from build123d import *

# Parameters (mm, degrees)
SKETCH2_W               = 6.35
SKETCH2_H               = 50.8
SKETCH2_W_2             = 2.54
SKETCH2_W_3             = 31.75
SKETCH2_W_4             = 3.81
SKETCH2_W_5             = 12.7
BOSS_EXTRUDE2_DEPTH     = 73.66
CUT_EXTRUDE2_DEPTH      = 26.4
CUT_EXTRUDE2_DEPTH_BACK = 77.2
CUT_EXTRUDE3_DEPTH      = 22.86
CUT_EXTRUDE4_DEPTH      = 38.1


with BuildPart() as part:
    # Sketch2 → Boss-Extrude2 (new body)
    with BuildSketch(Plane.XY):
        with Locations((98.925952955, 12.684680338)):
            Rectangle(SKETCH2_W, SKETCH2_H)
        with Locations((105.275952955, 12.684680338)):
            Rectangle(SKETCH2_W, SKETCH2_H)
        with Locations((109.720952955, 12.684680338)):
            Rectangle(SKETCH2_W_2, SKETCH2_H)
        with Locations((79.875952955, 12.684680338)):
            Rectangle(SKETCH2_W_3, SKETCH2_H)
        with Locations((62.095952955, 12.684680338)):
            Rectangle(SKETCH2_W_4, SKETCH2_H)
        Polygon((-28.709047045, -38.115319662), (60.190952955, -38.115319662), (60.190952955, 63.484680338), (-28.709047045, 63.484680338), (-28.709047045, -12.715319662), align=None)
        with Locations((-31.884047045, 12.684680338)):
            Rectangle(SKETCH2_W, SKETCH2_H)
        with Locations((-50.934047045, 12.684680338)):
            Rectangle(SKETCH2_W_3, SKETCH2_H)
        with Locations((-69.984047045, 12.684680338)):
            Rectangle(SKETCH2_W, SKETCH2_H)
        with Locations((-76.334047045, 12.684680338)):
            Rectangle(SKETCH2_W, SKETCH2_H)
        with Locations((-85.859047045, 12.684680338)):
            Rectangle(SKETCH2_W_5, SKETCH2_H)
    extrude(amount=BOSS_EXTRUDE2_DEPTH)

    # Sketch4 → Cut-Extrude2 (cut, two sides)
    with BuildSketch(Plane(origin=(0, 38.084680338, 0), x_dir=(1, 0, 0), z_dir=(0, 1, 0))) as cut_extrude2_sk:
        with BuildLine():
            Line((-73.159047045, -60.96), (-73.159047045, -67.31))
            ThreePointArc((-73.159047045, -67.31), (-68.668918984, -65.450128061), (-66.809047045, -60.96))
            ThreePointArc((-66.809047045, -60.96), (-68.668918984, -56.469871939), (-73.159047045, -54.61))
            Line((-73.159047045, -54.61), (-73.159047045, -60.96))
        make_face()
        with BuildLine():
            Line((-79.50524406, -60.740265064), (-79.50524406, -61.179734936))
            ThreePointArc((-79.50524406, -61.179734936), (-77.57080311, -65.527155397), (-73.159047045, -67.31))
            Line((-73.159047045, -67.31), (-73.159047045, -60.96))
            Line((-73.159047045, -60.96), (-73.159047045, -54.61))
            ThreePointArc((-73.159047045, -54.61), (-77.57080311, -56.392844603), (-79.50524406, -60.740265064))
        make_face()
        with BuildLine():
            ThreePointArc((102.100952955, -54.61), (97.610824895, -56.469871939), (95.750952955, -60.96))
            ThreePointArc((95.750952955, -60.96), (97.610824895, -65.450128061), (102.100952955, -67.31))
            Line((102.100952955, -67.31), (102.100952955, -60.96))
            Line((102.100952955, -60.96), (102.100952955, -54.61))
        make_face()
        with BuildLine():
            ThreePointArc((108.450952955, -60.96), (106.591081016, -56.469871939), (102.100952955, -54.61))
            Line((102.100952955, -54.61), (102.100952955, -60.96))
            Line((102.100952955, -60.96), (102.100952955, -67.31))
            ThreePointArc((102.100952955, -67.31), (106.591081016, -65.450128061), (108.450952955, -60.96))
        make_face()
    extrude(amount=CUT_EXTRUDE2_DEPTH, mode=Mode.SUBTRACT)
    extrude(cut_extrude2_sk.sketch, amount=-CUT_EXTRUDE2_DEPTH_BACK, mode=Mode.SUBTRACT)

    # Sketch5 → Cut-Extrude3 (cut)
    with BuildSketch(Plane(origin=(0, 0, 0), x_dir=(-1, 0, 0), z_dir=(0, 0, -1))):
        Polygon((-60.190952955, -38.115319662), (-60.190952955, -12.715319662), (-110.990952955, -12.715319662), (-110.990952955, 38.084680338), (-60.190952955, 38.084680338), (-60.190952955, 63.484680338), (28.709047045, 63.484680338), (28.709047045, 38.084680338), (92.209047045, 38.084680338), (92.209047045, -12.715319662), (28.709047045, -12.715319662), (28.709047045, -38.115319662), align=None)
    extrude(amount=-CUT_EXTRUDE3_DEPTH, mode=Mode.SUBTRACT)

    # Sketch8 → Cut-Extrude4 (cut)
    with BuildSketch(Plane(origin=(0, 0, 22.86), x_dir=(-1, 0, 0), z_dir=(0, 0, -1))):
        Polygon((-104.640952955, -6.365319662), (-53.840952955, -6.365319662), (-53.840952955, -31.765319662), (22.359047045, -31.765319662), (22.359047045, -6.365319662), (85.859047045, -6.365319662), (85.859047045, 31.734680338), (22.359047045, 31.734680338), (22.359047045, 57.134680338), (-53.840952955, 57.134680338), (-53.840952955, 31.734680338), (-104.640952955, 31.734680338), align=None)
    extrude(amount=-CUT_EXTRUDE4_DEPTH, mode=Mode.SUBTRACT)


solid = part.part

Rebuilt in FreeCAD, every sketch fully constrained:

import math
import FreeCAD as App
import Part
import Sketcher
from FreeCAD import Vector
Q = App.Units.Quantity


def add_polygon(sketch, points):
    """Adds a closed chain of lines whose ends are joined by coincident constraints."""
    first, n = sketch.GeometryCount, len(points)
    for a, b in zip(points, points[1:] + points[:1]):
        sketch.addGeometry(Part.LineSegment(App.Vector(*a, 0), App.Vector(*b, 0)), False)
    for i in range(n):
        sketch.addConstraint(Sketcher.Constraint("Coincident", first + i, 2, first + (i + 1) % n, 1))

doc = App.newDocument("Part")
body = doc.addObject("PartDesign::Body", "Body")

sketch1 = body.newObject("Sketcher::SketchObject", "Sketch")
sketch1.AttachmentSupport = (doc.getObject("XY_Plane"), [""])
sketch1.MapMode = "FlatFace"
add_polygon(sketch1, [(111, -13), (111, 38), (60, 38), (60, 63), (-29, 63), (-29, 38), (-92, 38), (-92, -13), (-29, -13), (-29, -38), (60, -38), (60, -13)])
sketch1.addConstraint(Sketcher.Constraint("Vertical", 0))
sketch1.addConstraint(Sketcher.Constraint("Horizontal", 1))
sketch1.addConstraint(Sketcher.Constraint("Vertical", 2))
sketch1.addConstraint(Sketcher.Constraint("Horizontal", 3))
sketch1.addConstraint(Sketcher.Constraint("Vertical", 4))
sketch1.addConstraint(Sketcher.Constraint("Horizontal", 5))
sketch1.addConstraint(Sketcher.Constraint("Vertical", 6))
sketch1.addConstraint(Sketcher.Constraint("Horizontal", 7))
sketch1.addConstraint(Sketcher.Constraint("Vertical", 8))
sketch1.addConstraint(Sketcher.Constraint("Horizontal", 9))
sketch1.addConstraint(Sketcher.Constraint("Vertical", 10))
sketch1.addConstraint(Sketcher.Constraint("Horizontal", 11))
sketch1.addConstraint(Sketcher.Constraint("Horizontal", 1, 2, 4, 2))
sketch1.addConstraint(Sketcher.Constraint("Horizontal", 7, 2, 10, 2))
sketch1.addConstraint(Sketcher.Constraint("Vertical", 4, 2, 7, 2))
sketch1.addConstraint(Sketcher.Constraint("Vertical", 2, 2, 9, 2))
sketch1.addConstraint(Sketcher.Constraint("Equal", 11, 0))
sketch1.addConstraint(Sketcher.Constraint("Equal", 4, 8))
sketch1.addConstraint(Sketcher.Constraint("DistanceX", 1, 2, 1, 1, Q("2 in")))
sketch1.addConstraint(Sketcher.Constraint("DistanceY", 2, 1, 2, 2, Q("1 in")))
sketch1.addConstraint(Sketcher.Constraint("DistanceX", 3, 2, 3, 1, Q("3.5 in")))
sketch1.addConstraint(Sketcher.Constraint("DistanceX", 5, 2, 5, 1, Q("2.5 in")))
sketch1.addConstraint(Sketcher.Constraint("DistanceY", -1, 1, 0, 2, Q("38.08468 mm")))
sketch1.addConstraint(Sketcher.Constraint("DistanceX", -1, 1, 0, 2, Q("110.990953 mm")))
pad1 = body.newObject("PartDesign::Pad", "Pad")
pad1.Profile = sketch1
pad1.Length = Q("2.9 in")

sketch2 = body.newObject("Sketcher::SketchObject", "Sketch001")
sketch2.AttachmentSupport = (doc.getObject("XZ_Plane"), [""])
sketch2.MapMode = "FlatFace"
sketch2.AttachmentOffset = App.Placement(Vector(0, 0, -38.08468), App.Rotation())
sketch2.addGeometry(Part.ArcOfCircle(Part.Circle(Vector(-73.16, 60.96, 0), Vector(0, 0, 1), 6.35), math.radians(0), math.radians(90)), False)
sketch2.addGeometry(Part.ArcOfCircle(Part.Circle(Vector(-73.16, 60.96, 0), Vector(0, 0, 1), 6.35), math.radians(-90), math.radians(0)), False)
sketch2.addGeometry(Part.ArcOfCircle(Part.Circle(Vector(-73.16, 60.96, 0), Vector(0, 0, 1), 6.35), math.radians(-178), math.radians(-90)), False)
sketch2.addGeometry(Part.LineSegment(Vector(-79.51, 60.74, 0), Vector(-79.51, 61.18, 0)), False)
sketch2.addGeometry(Part.ArcOfCircle(Part.Circle(Vector(-73.16, 60.96, 0), Vector(0, 0, 1), 6.35), math.radians(90), math.radians(178)), False)
sketch2.addGeometry(Part.ArcOfCircle(Part.Circle(Vector(102.1, 60.96, 0), Vector(0, 0, 1), 6.35), math.radians(180), math.radians(270)), False)
sketch2.addGeometry(Part.ArcOfCircle(Part.Circle(Vector(102.1, 60.96, 0), Vector(0, 0, 1), 6.35), math.radians(90), math.radians(180)), False)
sketch2.addGeometry(Part.ArcOfCircle(Part.Circle(Vector(102.1, 60.96, 0), Vector(0, 0, 1), 6.35), math.radians(0), math.radians(90)), False)
sketch2.addGeometry(Part.ArcOfCircle(Part.Circle(Vector(102.1, 60.96, 0), Vector(0, 0, 1), 6.35), math.radians(-90), math.radians(0)), False)
sketch2.addConstraint(Sketcher.Constraint("Tangent", 0, 1, 1, 2))
sketch2.addConstraint(Sketcher.Constraint("Tangent", 1, 1, 2, 2))
sketch2.addConstraint(Sketcher.Constraint("Coincident", 2, 1, 3, 1))
sketch2.addConstraint(Sketcher.Constraint("Coincident", 3, 2, 4, 2))
sketch2.addConstraint(Sketcher.Constraint("Tangent", 4, 1, 0, 2))
sketch2.addConstraint(Sketcher.Constraint("Tangent", 5, 1, 6, 2))
sketch2.addConstraint(Sketcher.Constraint("Tangent", 6, 1, 7, 2))
sketch2.addConstraint(Sketcher.Constraint("Tangent", 7, 1, 8, 2))
sketch2.addConstraint(Sketcher.Constraint("Tangent", 8, 1, 5, 2))
sketch2.addConstraint(Sketcher.Constraint("Vertical", 3))
sketch2.addConstraint(Sketcher.Constraint("Coincident", 2, 3, 0, 3))
sketch2.addConstraint(Sketcher.Constraint("Equal", 2, 4))
sketch2.addConstraint(Sketcher.Constraint("Equal", 4, 5))
sketch2.addConstraint(Sketcher.Constraint("Equal", 5, 6))
sketch2.addConstraint(Sketcher.Constraint("Horizontal", 4, 3, 5, 3))
sketch2.addConstraint(Sketcher.Constraint("Horizontal", 8, 3, 0, 1))
sketch2.addConstraint(Sketcher.Constraint("Horizontal", 0, 1, 5, 1))
sketch2.addConstraint(Sketcher.Constraint("Horizontal", 5, 1, 7, 1))
sketch2.addConstraint(Sketcher.Constraint("Vertical", 4, 3, 1, 1))
sketch2.addConstraint(Sketcher.Constraint("Vertical", 1, 1, 4, 1))
sketch2.addConstraint(Sketcher.Constraint("Vertical", 8, 3, 6, 1))
sketch2.addConstraint(Sketcher.Constraint("Vertical", 6, 1, 8, 1))
sketch2.addConstraint(Sketcher.Constraint("Radius", 0, Q("0.25 in")))
sketch2.addConstraint(Sketcher.Constraint("DistanceY", -1, 1, 0, 3, Q("2.4 in")))
sketch2.addConstraint(Sketcher.Constraint("DistanceX", 0, 3, 5, 3, Q("6.9 in")))
sketch2.addConstraint(Sketcher.Constraint("DistanceY", 3, 1, 3, 2, Q("0.43947 mm")))
sketch2.addConstraint(Sketcher.Constraint("DistanceX", 0, 3, -1, 1, Q("73.159047 mm")))
pocket1 = body.newObject("PartDesign::Pocket", "Pocket")
pocket1.Profile = sketch2
pocket1.Type = "ThroughAll"
pocket1.Midplane = True

sketch3 = body.newObject("Sketcher::SketchObject", "Sketch002")
sketch3.AttachmentSupport = (doc.getObject("XY_Plane"), [""])
sketch3.MapMode = "FlatFace"
add_polygon(sketch3, [(60, -13), (60, -38), (-29, -38), (-29, -13), (-92, -13), (-92, 38), (-29, 38), (-29, 63), (60, 63), (60, 38), (111, 38), (111, -13)])
sketch3.addConstraint(Sketcher.Constraint("Vertical", 0))
sketch3.addConstraint(Sketcher.Constraint("Horizontal", 1))
sketch3.addConstraint(Sketcher.Constraint("Vertical", 2))
sketch3.addConstraint(Sketcher.Constraint("Horizontal", 3))
sketch3.addConstraint(Sketcher.Constraint("Vertical", 4))
sketch3.addConstraint(Sketcher.Constraint("Horizontal", 5))
sketch3.addConstraint(Sketcher.Constraint("Vertical", 6))
sketch3.addConstraint(Sketcher.Constraint("Horizontal", 7))
sketch3.addConstraint(Sketcher.Constraint("Vertical", 8))
sketch3.addConstraint(Sketcher.Constraint("Horizontal", 9))
sketch3.addConstraint(Sketcher.Constraint("Vertical", 10))
sketch3.addConstraint(Sketcher.Constraint("Horizontal", 11))
sketch3.addConstraint(Sketcher.Constraint("Horizontal", 5, 2, 8, 2))
sketch3.addConstraint(Sketcher.Constraint("Horizontal", 3, 2, 10, 2))
sketch3.addConstraint(Sketcher.Constraint("Vertical", 2, 2, 5, 2))
sketch3.addConstraint(Sketcher.Constraint("Vertical", 0, 2, 7, 2))
sketch3.addConstraint(Sketcher.Constraint("Equal", 11, 4))
sketch3.addConstraint(Sketcher.Constraint("Equal", 2, 6))
sketch3.addConstraint(Sketcher.Constraint("DistanceX", 9, 1, 9, 2, Q("2 in")))
sketch3.addConstraint(Sketcher.Constraint("DistanceY", 0, 2, 0, 1, Q("1 in")))
sketch3.addConstraint(Sketcher.Constraint("DistanceX", 1, 2, 1, 1, Q("3.5 in")))
sketch3.addConstraint(Sketcher.Constraint("DistanceX", 3, 2, 3, 1, Q("2.5 in")))
sketch3.addConstraint(Sketcher.Constraint("DistanceY", 0, 2, -1, 1, Q("38.11532 mm")))
sketch3.addConstraint(Sketcher.Constraint("DistanceX", -1, 1, 0, 2, Q("60.190953 mm")))
pocket2 = body.newObject("PartDesign::Pocket", "Pocket001")
pocket2.Profile = sketch3
pocket2.Length = Q("0.9 in")
pocket2.Reversed = True

sketch4 = body.newObject("Sketcher::SketchObject", "Sketch003")
sketch4.AttachmentSupport = (doc.getObject("XY_Plane"), [""])
sketch4.MapMode = "FlatFace"
sketch4.AttachmentOffset = App.Placement(Vector(0, 0, 0.9 * 25.4), App.Rotation())
add_polygon(sketch4, [(105, -6), (54, -6), (54, -32), (-22, -32), (-22, -6), (-86, -6), (-86, 32), (-22, 32), (-22, 57), (54, 57), (54, 32), (105, 32)])
sketch4.addConstraint(Sketcher.Constraint("Horizontal", 0))
sketch4.addConstraint(Sketcher.Constraint("Vertical", 1))
sketch4.addConstraint(Sketcher.Constraint("Horizontal", 2))
sketch4.addConstraint(Sketcher.Constraint("Vertical", 3))
sketch4.addConstraint(Sketcher.Constraint("Horizontal", 4))
sketch4.addConstraint(Sketcher.Constraint("Vertical", 5))
sketch4.addConstraint(Sketcher.Constraint("Horizontal", 6))
sketch4.addConstraint(Sketcher.Constraint("Vertical", 7))
sketch4.addConstraint(Sketcher.Constraint("Horizontal", 8))
sketch4.addConstraint(Sketcher.Constraint("Vertical", 9))
sketch4.addConstraint(Sketcher.Constraint("Horizontal", 10))
sketch4.addConstraint(Sketcher.Constraint("Vertical", 11))
sketch4.addConstraint(Sketcher.Constraint("Horizontal", 0, 2, 3, 2))
sketch4.addConstraint(Sketcher.Constraint("Horizontal", 6, 2, 9, 2))
sketch4.addConstraint(Sketcher.Constraint("Vertical", 3, 2, 6, 2))
sketch4.addConstraint(Sketcher.Constraint("Vertical", 1, 2, 8, 2))
sketch4.addConstraint(Sketcher.Constraint("Equal", 3, 7))
sketch4.addConstraint(Sketcher.Constraint("DistanceX", 0, 2, 0, 1, Q("2 in")))
sketch4.addConstraint(Sketcher.Constraint("DistanceX", 2, 2, 2, 1, Q("3 in")))
sketch4.addConstraint(Sketcher.Constraint("DistanceY", 1, 2, 1, 1, Q("1 in")))
sketch4.addConstraint(Sketcher.Constraint("DistanceX", 4, 2, 4, 1, Q("2.5 in")))
sketch4.addConstraint(Sketcher.Constraint("DistanceY", 5, 1, 5, 2, Q("1.5 in")))
sketch4.addConstraint(Sketcher.Constraint("DistanceY", 0, 2, -1, 1, Q("6.36532 mm")))
sketch4.addConstraint(Sketcher.Constraint("DistanceX", -1, 1, 0, 2, Q("53.840953 mm")))
pocket3 = body.newObject("PartDesign::Pocket", "Pocket002")
pocket3.Profile = sketch4
pocket3.Length = Q("1.5 in")
pocket3.Reversed = True

doc.recompute()
